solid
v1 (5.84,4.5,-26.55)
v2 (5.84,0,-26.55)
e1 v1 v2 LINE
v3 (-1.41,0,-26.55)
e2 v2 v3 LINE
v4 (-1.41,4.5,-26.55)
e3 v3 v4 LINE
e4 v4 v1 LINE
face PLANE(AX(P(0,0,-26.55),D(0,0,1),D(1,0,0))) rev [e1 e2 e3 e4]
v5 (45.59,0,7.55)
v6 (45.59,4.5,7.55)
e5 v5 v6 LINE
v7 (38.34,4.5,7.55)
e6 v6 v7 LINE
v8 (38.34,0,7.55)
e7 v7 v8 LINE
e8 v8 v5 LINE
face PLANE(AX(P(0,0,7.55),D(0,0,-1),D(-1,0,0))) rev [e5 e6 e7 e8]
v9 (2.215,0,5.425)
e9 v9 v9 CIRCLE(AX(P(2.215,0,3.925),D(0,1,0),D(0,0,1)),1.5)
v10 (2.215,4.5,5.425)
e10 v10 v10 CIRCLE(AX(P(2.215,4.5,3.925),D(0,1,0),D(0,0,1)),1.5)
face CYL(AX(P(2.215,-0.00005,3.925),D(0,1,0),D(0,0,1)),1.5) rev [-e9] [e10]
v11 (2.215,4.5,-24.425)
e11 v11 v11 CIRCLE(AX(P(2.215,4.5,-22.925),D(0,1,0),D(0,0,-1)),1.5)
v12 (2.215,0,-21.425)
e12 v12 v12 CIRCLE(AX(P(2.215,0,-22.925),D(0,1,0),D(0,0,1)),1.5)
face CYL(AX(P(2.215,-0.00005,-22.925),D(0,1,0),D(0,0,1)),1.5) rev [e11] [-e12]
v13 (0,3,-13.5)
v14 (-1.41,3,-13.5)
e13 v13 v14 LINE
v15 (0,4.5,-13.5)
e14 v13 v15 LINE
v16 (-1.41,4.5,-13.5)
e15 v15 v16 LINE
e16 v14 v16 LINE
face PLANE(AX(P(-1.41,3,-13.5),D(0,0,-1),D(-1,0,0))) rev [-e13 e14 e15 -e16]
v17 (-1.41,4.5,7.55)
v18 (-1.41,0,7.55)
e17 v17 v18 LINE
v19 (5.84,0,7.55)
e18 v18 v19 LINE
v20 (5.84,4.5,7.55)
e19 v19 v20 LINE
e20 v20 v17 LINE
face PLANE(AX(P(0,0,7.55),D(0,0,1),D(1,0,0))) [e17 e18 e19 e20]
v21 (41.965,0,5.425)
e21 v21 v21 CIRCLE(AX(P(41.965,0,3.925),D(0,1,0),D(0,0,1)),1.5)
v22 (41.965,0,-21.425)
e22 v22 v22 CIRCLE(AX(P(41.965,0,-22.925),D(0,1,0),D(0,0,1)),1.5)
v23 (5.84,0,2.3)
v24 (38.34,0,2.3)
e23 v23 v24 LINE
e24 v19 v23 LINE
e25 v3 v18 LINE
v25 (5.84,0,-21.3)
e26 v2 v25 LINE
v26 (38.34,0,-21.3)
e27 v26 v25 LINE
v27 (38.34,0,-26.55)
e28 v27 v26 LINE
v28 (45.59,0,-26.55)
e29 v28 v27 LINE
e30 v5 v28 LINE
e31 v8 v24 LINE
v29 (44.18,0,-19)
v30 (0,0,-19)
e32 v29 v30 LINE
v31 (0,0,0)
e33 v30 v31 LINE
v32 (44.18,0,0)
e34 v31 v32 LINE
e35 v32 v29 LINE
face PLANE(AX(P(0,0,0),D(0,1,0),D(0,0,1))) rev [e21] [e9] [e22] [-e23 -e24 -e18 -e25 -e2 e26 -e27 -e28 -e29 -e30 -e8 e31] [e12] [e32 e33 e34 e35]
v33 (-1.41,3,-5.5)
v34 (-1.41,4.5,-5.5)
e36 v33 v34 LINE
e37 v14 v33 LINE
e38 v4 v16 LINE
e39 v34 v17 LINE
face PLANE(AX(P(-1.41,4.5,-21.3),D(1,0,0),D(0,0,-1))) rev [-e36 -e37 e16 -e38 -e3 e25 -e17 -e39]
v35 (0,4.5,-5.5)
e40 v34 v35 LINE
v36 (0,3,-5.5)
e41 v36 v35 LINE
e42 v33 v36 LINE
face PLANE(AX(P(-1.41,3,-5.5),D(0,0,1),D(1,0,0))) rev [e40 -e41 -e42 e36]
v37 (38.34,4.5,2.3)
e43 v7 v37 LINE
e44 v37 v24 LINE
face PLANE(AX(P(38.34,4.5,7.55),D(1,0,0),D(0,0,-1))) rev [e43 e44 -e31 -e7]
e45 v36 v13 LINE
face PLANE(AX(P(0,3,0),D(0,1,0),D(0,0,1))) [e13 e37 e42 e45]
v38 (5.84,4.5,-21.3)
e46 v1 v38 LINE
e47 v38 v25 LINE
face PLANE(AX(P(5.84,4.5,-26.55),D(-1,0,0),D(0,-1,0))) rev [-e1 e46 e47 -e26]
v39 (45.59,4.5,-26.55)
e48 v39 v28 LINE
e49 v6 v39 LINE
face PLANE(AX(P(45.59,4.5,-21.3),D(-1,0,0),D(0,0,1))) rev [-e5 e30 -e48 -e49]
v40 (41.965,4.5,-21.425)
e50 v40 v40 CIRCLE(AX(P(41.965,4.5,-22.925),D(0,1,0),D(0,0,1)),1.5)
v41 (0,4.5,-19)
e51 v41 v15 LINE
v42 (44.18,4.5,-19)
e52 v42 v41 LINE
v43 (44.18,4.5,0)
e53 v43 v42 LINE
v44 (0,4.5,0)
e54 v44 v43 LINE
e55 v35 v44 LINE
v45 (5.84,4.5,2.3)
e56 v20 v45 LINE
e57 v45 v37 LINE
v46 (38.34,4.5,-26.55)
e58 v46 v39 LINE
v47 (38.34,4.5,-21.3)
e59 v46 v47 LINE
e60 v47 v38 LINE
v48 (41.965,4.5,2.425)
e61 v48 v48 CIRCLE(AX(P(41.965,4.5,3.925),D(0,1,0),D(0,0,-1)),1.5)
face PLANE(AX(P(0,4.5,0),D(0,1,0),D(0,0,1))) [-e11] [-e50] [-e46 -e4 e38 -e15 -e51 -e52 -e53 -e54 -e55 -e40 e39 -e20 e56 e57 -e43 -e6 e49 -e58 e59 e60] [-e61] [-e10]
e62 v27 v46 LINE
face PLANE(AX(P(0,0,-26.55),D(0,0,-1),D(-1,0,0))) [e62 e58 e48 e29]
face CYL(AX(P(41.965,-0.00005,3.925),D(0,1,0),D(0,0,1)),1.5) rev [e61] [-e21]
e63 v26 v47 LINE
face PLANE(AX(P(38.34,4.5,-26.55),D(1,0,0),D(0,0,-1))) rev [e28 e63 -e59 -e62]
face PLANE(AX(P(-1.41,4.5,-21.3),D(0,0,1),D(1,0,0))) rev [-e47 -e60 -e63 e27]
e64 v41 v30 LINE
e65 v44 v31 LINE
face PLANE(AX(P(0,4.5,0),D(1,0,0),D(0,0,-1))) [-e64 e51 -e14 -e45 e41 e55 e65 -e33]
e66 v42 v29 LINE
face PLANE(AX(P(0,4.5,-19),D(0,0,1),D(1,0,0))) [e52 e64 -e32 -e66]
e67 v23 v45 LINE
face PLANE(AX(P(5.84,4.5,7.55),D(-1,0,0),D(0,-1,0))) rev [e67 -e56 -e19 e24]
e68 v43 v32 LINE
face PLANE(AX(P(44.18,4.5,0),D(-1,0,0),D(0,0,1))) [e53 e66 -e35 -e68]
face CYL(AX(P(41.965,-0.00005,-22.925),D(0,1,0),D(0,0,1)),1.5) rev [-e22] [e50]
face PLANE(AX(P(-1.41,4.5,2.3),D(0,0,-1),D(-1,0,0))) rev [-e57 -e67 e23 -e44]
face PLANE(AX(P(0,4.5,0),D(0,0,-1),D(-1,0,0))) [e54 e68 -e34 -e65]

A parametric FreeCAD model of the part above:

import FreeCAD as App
import Part
import Sketcher
from FreeCAD import Vector

doc = App.newDocument("Part")
body = doc.addObject("PartDesign::Body", "Body")

sketch1 = body.newObject("Sketcher::SketchObject", "Sketch")
sketch1.AttachmentSupport = (doc.getObject("XZ_Plane"), [""])
sketch1.MapMode = "FlatFace"
sketch1.addGeometry(Part.LineSegment(Vector(-1, -21, 0), Vector(-1, 2, 0)), False)
sketch1.addGeometry(Part.LineSegment(Vector(-1, 2, 0), Vector(46, 2, 0)), False)
sketch1.addGeometry(Part.LineSegment(Vector(46, 2, 0), Vector(46, -21, 0)), False)
sketch1.addGeometry(Part.LineSegment(Vector(46, -21, 0), Vector(-1, -21, 0)), False)
sketch1.addGeometry(Part.LineSegment(Vector(44, 0, 0), Vector(0, 0, 0)), False)
sketch1.addGeometry(Part.LineSegment(Vector(0, 0, 0), Vector(0, -19, 0)), False)
sketch1.addGeometry(Part.LineSegment(Vector(0, -19, 0), Vector(44, -19, 0)), False)
sketch1.addGeometry(Part.LineSegment(Vector(44, -19, 0), Vector(44, 0, 0)), False)
sketch1.addConstraint(Sketcher.Constraint("Coincident", 0, 2, 1, 1))
sketch1.addConstraint(Sketcher.Constraint("Coincident", 1, 2, 2, 1))
sketch1.addConstraint(Sketcher.Constraint("Coincident", 2, 2, 3, 1))
sketch1.addConstraint(Sketcher.Constraint("Coincident", 3, 2, 0, 1))
sketch1.addConstraint(Sketcher.Constraint("Coincident", 4, 2, 5, 1))
sketch1.addConstraint(Sketcher.Constraint("Coincident", 5, 2, 6, 1))
sketch1.addConstraint(Sketcher.Constraint("Coincident", 6, 2, 7, 1))
sketch1.addConstraint(Sketcher.Constraint("Coincident", 7, 2, 4, 1))
sketch1.addConstraint(Sketcher.Constraint("Vertical", 0))
sketch1.addConstraint(Sketcher.Constraint("Horizontal", 1))
sketch1.addConstraint(Sketcher.Constraint("Vertical", 2))
sketch1.addConstraint(Sketcher.Constraint("Horizontal", 3))
sketch1.addConstraint(Sketcher.Constraint("Horizontal", 4))
sketch1.addConstraint(Sketcher.Constraint("Vertical", 5))
sketch1.addConstraint(Sketcher.Constraint("Horizontal", 6))
sketch1.addConstraint(Sketcher.Constraint("Vertical", 7))
sketch1.addConstraint(Sketcher.Constraint("Coincident", 4, 2, -1, 1))
sketch1.addConstraint(Sketcher.Constraint("DistanceX", 1, 1, 1, 2, 47.0))
sketch1.addConstraint(Sketcher.Constraint("DistanceY", 5, 2, 5, 1, 19.0))
sketch1.addConstraint(Sketcher.Constraint("DistanceY", 0, 1, 0, 2, 23.6))
sketch1.addConstraint(Sketcher.Constraint("DistanceX", 4, 2, 4, 1, 44.18))
sketch1.addConstraint(Sketcher.Constraint("DistanceY", -1, 1, 0, 2, 2.3))
sketch1.addConstraint(Sketcher.Constraint("DistanceX", 0, 2, -1, 1, 1.41))
pad1 = body.newObject("PartDesign::Pad", "Pad")
pad1.Profile = sketch1
pad1.Length = 4.5
pad1.Reversed = True

sketch2 = body.newObject("Sketcher::SketchObject", "Sketch001")
sketch2.AttachmentSupport = (doc.getObject("XY_Plane"), [""])
sketch2.MapMode = "FlatFace"
sketch2.AttachmentOffset = App.Placement(Vector(0, 0, 2.3), App.Rotation())
sketch2.addGeometry(Part.LineSegment(Vector(-1.4, 4.5, 0), Vector(-1.4, 0, 0)), False)
sketch2.addGeometry(Part.LineSegment(Vector(-1.4, 0, 0), Vector(5.8, 0, 0)), False)
sketch2.addGeometry(Part.LineSegment(Vector(5.8, 0, 0), Vector(5.8, 4.5, 0)), False)
sketch2.addGeometry(Part.LineSegment(Vector(5.8, 4.5, 0), Vector(-1.4, 4.5, 0)), False)
sketch2.addGeometry(Part.LineSegment(Vector(38.3, 4.5, 0), Vector(38.3, 0, 0)), False)
sketch2.addGeometry(Part.LineSegment(Vector(38.3, 0, 0), Vector(45.6, 0, 0)), False)
sketch2.addGeometry(Part.LineSegment(Vector(45.6, 0, 0), Vector(45.6, 4.5, 0)), False)
sketch2.addGeometry(Part.LineSegment(Vector(45.6, 4.5, 0), Vector(38.3, 4.5, 0)), False)
sketch2.addConstraint(Sketcher.Constraint("Coincident", 0, 2, 1, 1))
sketch2.addConstraint(Sketcher.Constraint("Coincident", 1, 2, 2, 1))
sketch2.addConstraint(Sketcher.Constraint("Coincident", 2, 2, 3, 1))
sketch2.addConstraint(Sketcher.Constraint("Coincident", 3, 2, 0, 1))
sketch2.addConstraint(Sketcher.Constraint("Coincident", 4, 2, 5, 1))
sketch2.addConstraint(Sketcher.Constraint("Coincident", 5, 2, 6, 1))
sketch2.addConstraint(Sketcher.Constraint("Coincident", 6, 2, 7, 1))
sketch2.addConstraint(Sketcher.Constraint("Coincident", 7, 2, 4, 1))
sketch2.addConstraint(Sketcher.Constraint("Vertical", 0))
sketch2.addConstraint(Sketcher.Constraint("Horizontal", 1))
sketch2.addConstraint(Sketcher.Constraint("Vertical", 2))
sketch2.addConstraint(Sketcher.Constraint("Horizontal", 3))
sketch2.addConstraint(Sketcher.Constraint("Vertical", 4))
sketch2.addConstraint(Sketcher.Constraint("Horizontal", 5))
sketch2.addConstraint(Sketcher.Constraint("Vertical", 6))
sketch2.addConstraint(Sketcher.Constraint("Horizontal", 7))
sketch2.addConstraint(Sketcher.Constraint("PointOnObject", 0, 2, -1))
sketch2.addConstraint(Sketcher.Constraint("PointOnObject", 4, 2, -1))
sketch2.addConstraint(Sketcher.Constraint("Horizontal", 3, 2, 6, 2))
sketch2.addConstraint(Sketcher.Constraint("Equal", 3, 5))
sketch2.addConstraint(Sketcher.Constraint("DistanceY", 0, 2, 0, 1, 4.5))
sketch2.addConstraint(Sketcher.Constraint("DistanceX", 0, 2, 5, 2, 47.0))
sketch2.addConstraint(Sketcher.Constraint("DistanceX", 1, 1, 1, 2, 7.25))
sketch2.addConstraint(Sketcher.Constraint("DistanceX", 0, 2, -1, 1, 1.41))
pad2 = body.newObject("PartDesign::Pad", "Pad001")
pad2.Profile = sketch2
pad2.Length = 5.25

sketch3 = body.newObject("Sketcher::SketchObject", "Sketch002")
sketch3.AttachmentSupport = (doc.getObject("XY_Plane"), [""])
sketch3.MapMode = "FlatFace"
sketch3.AttachmentOffset = App.Placement(Vector(0, 0, -21.3), App.Rotation())
sketch3.addGeometry(Part.LineSegment(Vector(45.6, 4.5, 0), Vector(45.6, 0, 0)), False)
sketch3.addGeometry(Part.LineSegment(Vector(45.6, 0, 0), Vector(38.3, 0, 0)), False)
sketch3.addGeometry(Part.LineSegment(Vector(38.3, 0, 0), Vector(38.3, 4.5, 0)), False)
sketch3.addGeometry(Part.LineSegment(Vector(38.3, 4.5, 0), Vector(45.6, 4.5, 0)), False)
sketch3.addGeometry(Part.LineSegment(Vector(5.8, 4.5, 0), Vector(5.8, 0, 0)), False)
sketch3.addGeometry(Part.LineSegment(Vector(5.8, 0, 0), Vector(-1.4, 0, 0)), False)
sketch3.addGeometry(Part.LineSegment(Vector(-1.4, 0, 0), Vector(-1.4, 4.5, 0)), False)
sketch3.addGeometry(Part.LineSegment(Vector(-1.4, 4.5, 0), Vector(5.8, 4.5, 0)), False)
sketch3.addConstraint(Sketcher.Constraint("Coincident", 0, 2, 1, 1))
sketch3.addConstraint(Sketcher.Constraint("Coincident", 1, 2, 2, 1))
sketch3.addConstraint(Sketcher.Constraint("Coincident", 2, 2, 3, 1))
sketch3.addConstraint(Sketcher.Constraint("Coincident", 3, 2, 0, 1))
sketch3.addConstraint(Sketcher.Constraint("Coincident", 4, 2, 5, 1))
sketch3.addConstraint(Sketcher.Constraint("Coincident", 5, 2, 6, 1))
sketch3.addConstraint(Sketcher.Constraint("Coincident", 6, 2, 7, 1))
sketch3.addConstraint(Sketcher.Constraint("Coincident", 7, 2, 4, 1))
sketch3.addConstraint(Sketcher.Constraint("Vertical", 0))
sketch3.addConstraint(Sketcher.Constraint("Horizontal", 1))
sketch3.addConstraint(Sketcher.Constraint("Vertical", 2))
sketch3.addConstraint(Sketcher.Constraint("Horizontal", 3))
sketch3.addConstraint(Sketcher.Constraint("Vertical", 4))
sketch3.addConstraint(Sketcher.Constraint("Horizontal", 5))
sketch3.addConstraint(Sketcher.Constraint("Vertical", 6))
sketch3.addConstraint(Sketcher.Constraint("Horizontal", 7))
sketch3.addConstraint(Sketcher.Constraint("PointOnObject", 0, 2, -1))
sketch3.addConstraint(Sketcher.Constraint("PointOnObject", 4, 2, -1))
sketch3.addConstraint(Sketcher.Constraint("Horizontal", 3, 2, 6, 2))
sketch3.addConstraint(Sketcher.Constraint("Equal", 3, 5))
sketch3.addConstraint(Sketcher.Constraint("DistanceY", 0, 2, 0, 1, 4.5))
sketch3.addConstraint(Sketcher.Constraint("DistanceX", 5, 2, 0, 2, 47.0))
sketch3.addConstraint(Sketcher.Constraint("DistanceX", 1, 2, 1, 1, 7.25))
sketch3.addConstraint(Sketcher.Constraint("DistanceX", -1, 1, 0, 2, 45.59))
pad3 = body.newObject("PartDesign::Pad", "Pad002")
pad3.Profile = sketch3
pad3.Length = 5.25
pad3.Reversed = True

sketch4 = body.newObject("Sketcher::SketchObject", "Sketch003")
sketch4.AttachmentSupport = (doc.getObject("XZ_Plane"), [""])
sketch4.MapMode = "FlatFace"
sketch4.AttachmentOffset = App.Placement(Vector(0, 0, -4.5), App.Rotation())
sketch4.addGeometry(Part.Circle(Vector(42, -22.9, 0), Vector(0, 0, 1), 1.5), False)
sketch4.addGeometry(Part.Circle(Vector(42, 3.9, 0), Vector(0, 0, 1), 1.5), False)
sketch4.addGeometry(Part.Circle(Vector(2.2, 3.9, 0), Vector(0, 0, 1), 1.5), False)
sketch4.addGeometry(Part.Circle(Vector(2.2, -22.9, 0), Vector(0, 0, 1), 1.5), False)
sketch4.addConstraint(Sketcher.Constraint("Equal", 0, 1))
sketch4.addConstraint(Sketcher.Constraint("Equal", 1, 2))
sketch4.addConstraint(Sketcher.Constraint("Equal", 2, 3))
sketch4.addConstraint(Sketcher.Constraint("Horizontal", 1, 3, 2, 3))
sketch4.addConstraint(Sketcher.Constraint("Horizontal", 0, 3, 3, 3))
sketch4.addConstraint(Sketcher.Constraint("Vertical", 0, 3, 1, 3))
sketch4.addConstraint(Sketcher.Constraint("Vertical", 2, 3, 3, 3))
sketch4.addConstraint(Sketcher.Constraint("Diameter", 0, 3.0))
sketch4.addConstraint(Sketcher.Constraint("DistanceY", 0, 3, 1, 3, 26.85))
sketch4.addConstraint(Sketcher.Constraint("DistanceX", 2, 3, 1, 3, 39.75))
sketch4.addConstraint(Sketcher.Constraint("DistanceX", -1, 1, 0, 3, 41.965))
sketch4.addConstraint(Sketcher.Constraint("DistanceY", 0, 3, -1, 1, 22.925))
pocket1 = body.newObject("PartDesign::Pocket", "Pocket")
pocket1.Profile = sketch4
pocket1.Type = "ThroughAll"
pocket1.Reversed = True

sketch5 = body.newObject("Sketcher::SketchObject", "Sketch004")
sketch5.AttachmentSupport = (doc.getObject("XZ_Plane"), [""])
sketch5.MapMode = "FlatFace"
sketch5.AttachmentOffset = App.Placement(Vector(0, 0, -4.5), App.Rotation())
sketch5.addGeometry(Part.LineSegment(Vector(-1.4, -13.5, 0), Vector(-1.4, -5.5, 0)), False)
sketch5.addGeometry(Part.LineSegment(Vector(-1.4, -5.5, 0), Vector(0, -5.5, 0)), False)
sketch5.addGeometry(Part.LineSegment(Vector(0, -5.5, 0), Vector(0, -13.5, 0)), False)
sketch5.addGeometry(Part.LineSegment(Vector(0, -13.5, 0), Vector(-1.4, -13.5, 0)), False)
sketch5.addConstraint(Sketcher.Constraint("Coincident", 0, 2, 1, 1))
sketch5.addConstraint(Sketcher.Constraint("Coincident", 1, 2, 2, 1))
sketch5.addConstraint(Sketcher.Constraint("Coincident", 2, 2, 3, 1))
sketch5.addConstraint(Sketcher.Constraint("Coincident", 3, 2, 0, 1))
sketch5.addConstraint(Sketcher.Constraint("Vertical", 0))
sketch5.addConstraint(Sketcher.Constraint("Horizontal", 1))
sketch5.addConstraint(Sketcher.Constraint("Vertical", 2))
sketch5.addConstraint(Sketcher.Constraint("Horizontal", 3))
sketch5.addConstraint(Sketcher.Constraint("PointOnObject", 1, 2, -2))
sketch5.addConstraint(Sketcher.Constraint("DistanceY", 0, 1, 0, 2, 8.0))
sketch5.addConstraint(Sketcher.Constraint("DistanceX", 1, 1, 1, 2, 1.41))
sketch5.addConstraint(Sketcher.Constraint("DistanceY", 0, 2, -1, 1, 5.5))
pocket2 = body.newObject("PartDesign::Pocket", "Pocket001")
pocket2.Profile = sketch5
pocket2.Length = 1.5
pocket2.Reversed = True

doc.recompute()
